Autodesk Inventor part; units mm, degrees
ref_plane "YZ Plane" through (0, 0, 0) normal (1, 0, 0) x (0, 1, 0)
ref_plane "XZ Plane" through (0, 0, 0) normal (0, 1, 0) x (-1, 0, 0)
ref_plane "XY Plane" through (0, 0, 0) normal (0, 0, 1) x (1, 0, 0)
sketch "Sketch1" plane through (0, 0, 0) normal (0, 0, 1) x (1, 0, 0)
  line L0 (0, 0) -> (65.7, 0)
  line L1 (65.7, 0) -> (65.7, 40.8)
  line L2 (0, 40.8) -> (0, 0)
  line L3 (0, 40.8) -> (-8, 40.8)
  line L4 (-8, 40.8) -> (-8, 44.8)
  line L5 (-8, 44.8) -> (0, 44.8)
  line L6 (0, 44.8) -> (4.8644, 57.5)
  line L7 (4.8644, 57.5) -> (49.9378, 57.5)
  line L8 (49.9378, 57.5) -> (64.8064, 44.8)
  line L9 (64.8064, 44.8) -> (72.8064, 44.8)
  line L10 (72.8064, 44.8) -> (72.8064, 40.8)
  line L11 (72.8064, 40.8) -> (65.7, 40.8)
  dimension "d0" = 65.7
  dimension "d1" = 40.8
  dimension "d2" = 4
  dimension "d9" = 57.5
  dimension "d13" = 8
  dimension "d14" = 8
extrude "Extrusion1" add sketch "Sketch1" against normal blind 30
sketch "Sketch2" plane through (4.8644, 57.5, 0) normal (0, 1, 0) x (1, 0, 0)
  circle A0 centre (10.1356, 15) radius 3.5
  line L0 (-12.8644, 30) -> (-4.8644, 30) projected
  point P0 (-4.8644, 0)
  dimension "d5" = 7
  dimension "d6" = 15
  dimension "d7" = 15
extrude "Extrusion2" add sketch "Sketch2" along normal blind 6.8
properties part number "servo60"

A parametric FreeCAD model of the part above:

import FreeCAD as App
import Part
import Sketcher
from FreeCAD import Vector

doc = App.newDocument("Part")
body = doc.addObject("PartDesign::Body", "Body")

# Sketch on XY plane
sketch1 = body.newObject("Sketcher::SketchObject", "Sketch")
sketch1.AttachmentSupport = (doc.getObject("XY_Plane"), [""])
sketch1.MapMode = "FlatFace"
sketch1.addGeometry([
    Part.LineSegment(Vector(0, 40.8, 0), Vector(0, 0, 0)),  # 0
    Part.LineSegment(Vector(0, 0, 0), Vector(65.7, 0, 0)),  # 1
    Part.LineSegment(Vector(65.7, 0, 0), Vector(65.7, 40.8, 0)),  # 2
    Part.LineSegment(Vector(65.7, 40.8, 0), Vector(72.8, 40.8, 0)),  # 3
    Part.LineSegment(Vector(72.8, 40.8, 0), Vector(72.8, 44.8, 0)),  # 4
    Part.LineSegment(Vector(72.8, 44.8, 0), Vector(64.8, 44.8, 0)),  # 5
    Part.LineSegment(Vector(64.8, 44.8, 0), Vector(49.9, 57.5, 0)),  # 6
    Part.LineSegment(Vector(49.9, 57.5, 0), Vector(4.9, 57.5, 0)),  # 7
    Part.LineSegment(Vector(4.9, 57.5, 0), Vector(0, 44.8, 0)),  # 8
    Part.LineSegment(Vector(0, 44.8, 0), Vector(-8, 44.8, 0)),  # 9
    Part.LineSegment(Vector(-8, 44.8, 0), Vector(-8, 40.8, 0)),  # 10
    Part.LineSegment(Vector(-8, 40.8, 0), Vector(0, 40.8, 0)),  # 11
], False)
sketch1.addConstraint([
    Sketcher.Constraint("Coincident", 0, 2, 1, 1),
    Sketcher.Constraint("Coincident", 1, 2, 2, 1),
    Sketcher.Constraint("Coincident", 2, 2, 3, 1),
    Sketcher.Constraint("Coincident", 3, 2, 4, 1),
    Sketcher.Constraint("Coincident", 4, 2, 5, 1),
    Sketcher.Constraint("Coincident", 5, 2, 6, 1),
    Sketcher.Constraint("Coincident", 6, 2, 7, 1),
    Sketcher.Constraint("Coincident", 7, 2, 8, 1),
    Sketcher.Constraint("Coincident", 8, 2, 9, 1),
    Sketcher.Constraint("Coincident", 9, 2, 10, 1),
    Sketcher.Constraint("Coincident", 10, 2, 11, 1),
    Sketcher.Constraint("Coincident", 11, 2, 0, 1),
    Sketcher.Constraint("Vertical", 0),
    Sketcher.Constraint("Horizontal", 1),
    Sketcher.Constraint("Vertical", 2),
    Sketcher.Constraint("Horizontal", 3),
    Sketcher.Constraint("Vertical", 4),
    Sketcher.Constraint("Horizontal", 5),
    Sketcher.Constraint("Horizontal", 7),
    Sketcher.Constraint("Horizontal", 9),
    Sketcher.Constraint("Vertical", 10),
    Sketcher.Constraint("Horizontal", 11),
    Sketcher.Constraint("Coincident", 0, 2, -1, 1),
    Sketcher.Constraint("PointOnObject", 8, 2, -2),
    Sketcher.Constraint("Horizontal", 5, 2, 8, 2),
    Sketcher.Constraint("Horizontal", 3, 2, 10, 2),
    Sketcher.Constraint("Equal", 5, 9),
    Sketcher.Constraint("DistanceX", 5, 2, 5, 1, 8.0),
    Sketcher.Constraint("DistanceY", 4, 1, 4, 2, 4.0),
    Sketcher.Constraint("DistanceX", 1, 1, 1, 2, 65.7),
    Sketcher.Constraint("DistanceY", 0, 2, 0, 1, 40.8),
    Sketcher.Constraint("DistanceY", -1, 1, 6, 2, 57.5),
    Sketcher.Constraint("DistanceX", 3, 1, 3, 2, 7.1064),
    Sketcher.Constraint("DistanceX", 7, 2, 7, 1, 45.0734),
    Sketcher.Constraint("DistanceX", 7, 2, 5, 2, 59.942),
])
pad1 = body.newObject("PartDesign::Pad", "Pad")
pad1.Profile = sketch1
pad1.Length = 30
pad1.Reversed = True

# Sketch on XZ plane
sketch2 = body.newObject("Sketcher::SketchObject", "Sketch001")
sketch2.AttachmentSupport = (doc.getObject("XZ_Plane"), [""])
sketch2.MapMode = "FlatFace"
sketch2.AttachmentOffset = App.Placement(Vector(0, 0, -57.5), App.Rotation())
sketch2.addGeometry(Part.Circle(Vector(15, -15, 0), Vector(0, 0, 1), 3.5), False)
sketch2.addConstraint([
    Sketcher.Constraint("Diameter", 0, 7.0),
    Sketcher.Constraint("DistanceX", -1, 1, 0, 3, 15.0),
    Sketcher.Constraint("DistanceY", 0, 3, -1, 1, 15.0),
])
pad2 = body.newObject("PartDesign::Pad", "Pad001")
pad2.Profile = sketch2
pad2.Length = 6.8
pad2.Reversed = True

doc.recompute()
